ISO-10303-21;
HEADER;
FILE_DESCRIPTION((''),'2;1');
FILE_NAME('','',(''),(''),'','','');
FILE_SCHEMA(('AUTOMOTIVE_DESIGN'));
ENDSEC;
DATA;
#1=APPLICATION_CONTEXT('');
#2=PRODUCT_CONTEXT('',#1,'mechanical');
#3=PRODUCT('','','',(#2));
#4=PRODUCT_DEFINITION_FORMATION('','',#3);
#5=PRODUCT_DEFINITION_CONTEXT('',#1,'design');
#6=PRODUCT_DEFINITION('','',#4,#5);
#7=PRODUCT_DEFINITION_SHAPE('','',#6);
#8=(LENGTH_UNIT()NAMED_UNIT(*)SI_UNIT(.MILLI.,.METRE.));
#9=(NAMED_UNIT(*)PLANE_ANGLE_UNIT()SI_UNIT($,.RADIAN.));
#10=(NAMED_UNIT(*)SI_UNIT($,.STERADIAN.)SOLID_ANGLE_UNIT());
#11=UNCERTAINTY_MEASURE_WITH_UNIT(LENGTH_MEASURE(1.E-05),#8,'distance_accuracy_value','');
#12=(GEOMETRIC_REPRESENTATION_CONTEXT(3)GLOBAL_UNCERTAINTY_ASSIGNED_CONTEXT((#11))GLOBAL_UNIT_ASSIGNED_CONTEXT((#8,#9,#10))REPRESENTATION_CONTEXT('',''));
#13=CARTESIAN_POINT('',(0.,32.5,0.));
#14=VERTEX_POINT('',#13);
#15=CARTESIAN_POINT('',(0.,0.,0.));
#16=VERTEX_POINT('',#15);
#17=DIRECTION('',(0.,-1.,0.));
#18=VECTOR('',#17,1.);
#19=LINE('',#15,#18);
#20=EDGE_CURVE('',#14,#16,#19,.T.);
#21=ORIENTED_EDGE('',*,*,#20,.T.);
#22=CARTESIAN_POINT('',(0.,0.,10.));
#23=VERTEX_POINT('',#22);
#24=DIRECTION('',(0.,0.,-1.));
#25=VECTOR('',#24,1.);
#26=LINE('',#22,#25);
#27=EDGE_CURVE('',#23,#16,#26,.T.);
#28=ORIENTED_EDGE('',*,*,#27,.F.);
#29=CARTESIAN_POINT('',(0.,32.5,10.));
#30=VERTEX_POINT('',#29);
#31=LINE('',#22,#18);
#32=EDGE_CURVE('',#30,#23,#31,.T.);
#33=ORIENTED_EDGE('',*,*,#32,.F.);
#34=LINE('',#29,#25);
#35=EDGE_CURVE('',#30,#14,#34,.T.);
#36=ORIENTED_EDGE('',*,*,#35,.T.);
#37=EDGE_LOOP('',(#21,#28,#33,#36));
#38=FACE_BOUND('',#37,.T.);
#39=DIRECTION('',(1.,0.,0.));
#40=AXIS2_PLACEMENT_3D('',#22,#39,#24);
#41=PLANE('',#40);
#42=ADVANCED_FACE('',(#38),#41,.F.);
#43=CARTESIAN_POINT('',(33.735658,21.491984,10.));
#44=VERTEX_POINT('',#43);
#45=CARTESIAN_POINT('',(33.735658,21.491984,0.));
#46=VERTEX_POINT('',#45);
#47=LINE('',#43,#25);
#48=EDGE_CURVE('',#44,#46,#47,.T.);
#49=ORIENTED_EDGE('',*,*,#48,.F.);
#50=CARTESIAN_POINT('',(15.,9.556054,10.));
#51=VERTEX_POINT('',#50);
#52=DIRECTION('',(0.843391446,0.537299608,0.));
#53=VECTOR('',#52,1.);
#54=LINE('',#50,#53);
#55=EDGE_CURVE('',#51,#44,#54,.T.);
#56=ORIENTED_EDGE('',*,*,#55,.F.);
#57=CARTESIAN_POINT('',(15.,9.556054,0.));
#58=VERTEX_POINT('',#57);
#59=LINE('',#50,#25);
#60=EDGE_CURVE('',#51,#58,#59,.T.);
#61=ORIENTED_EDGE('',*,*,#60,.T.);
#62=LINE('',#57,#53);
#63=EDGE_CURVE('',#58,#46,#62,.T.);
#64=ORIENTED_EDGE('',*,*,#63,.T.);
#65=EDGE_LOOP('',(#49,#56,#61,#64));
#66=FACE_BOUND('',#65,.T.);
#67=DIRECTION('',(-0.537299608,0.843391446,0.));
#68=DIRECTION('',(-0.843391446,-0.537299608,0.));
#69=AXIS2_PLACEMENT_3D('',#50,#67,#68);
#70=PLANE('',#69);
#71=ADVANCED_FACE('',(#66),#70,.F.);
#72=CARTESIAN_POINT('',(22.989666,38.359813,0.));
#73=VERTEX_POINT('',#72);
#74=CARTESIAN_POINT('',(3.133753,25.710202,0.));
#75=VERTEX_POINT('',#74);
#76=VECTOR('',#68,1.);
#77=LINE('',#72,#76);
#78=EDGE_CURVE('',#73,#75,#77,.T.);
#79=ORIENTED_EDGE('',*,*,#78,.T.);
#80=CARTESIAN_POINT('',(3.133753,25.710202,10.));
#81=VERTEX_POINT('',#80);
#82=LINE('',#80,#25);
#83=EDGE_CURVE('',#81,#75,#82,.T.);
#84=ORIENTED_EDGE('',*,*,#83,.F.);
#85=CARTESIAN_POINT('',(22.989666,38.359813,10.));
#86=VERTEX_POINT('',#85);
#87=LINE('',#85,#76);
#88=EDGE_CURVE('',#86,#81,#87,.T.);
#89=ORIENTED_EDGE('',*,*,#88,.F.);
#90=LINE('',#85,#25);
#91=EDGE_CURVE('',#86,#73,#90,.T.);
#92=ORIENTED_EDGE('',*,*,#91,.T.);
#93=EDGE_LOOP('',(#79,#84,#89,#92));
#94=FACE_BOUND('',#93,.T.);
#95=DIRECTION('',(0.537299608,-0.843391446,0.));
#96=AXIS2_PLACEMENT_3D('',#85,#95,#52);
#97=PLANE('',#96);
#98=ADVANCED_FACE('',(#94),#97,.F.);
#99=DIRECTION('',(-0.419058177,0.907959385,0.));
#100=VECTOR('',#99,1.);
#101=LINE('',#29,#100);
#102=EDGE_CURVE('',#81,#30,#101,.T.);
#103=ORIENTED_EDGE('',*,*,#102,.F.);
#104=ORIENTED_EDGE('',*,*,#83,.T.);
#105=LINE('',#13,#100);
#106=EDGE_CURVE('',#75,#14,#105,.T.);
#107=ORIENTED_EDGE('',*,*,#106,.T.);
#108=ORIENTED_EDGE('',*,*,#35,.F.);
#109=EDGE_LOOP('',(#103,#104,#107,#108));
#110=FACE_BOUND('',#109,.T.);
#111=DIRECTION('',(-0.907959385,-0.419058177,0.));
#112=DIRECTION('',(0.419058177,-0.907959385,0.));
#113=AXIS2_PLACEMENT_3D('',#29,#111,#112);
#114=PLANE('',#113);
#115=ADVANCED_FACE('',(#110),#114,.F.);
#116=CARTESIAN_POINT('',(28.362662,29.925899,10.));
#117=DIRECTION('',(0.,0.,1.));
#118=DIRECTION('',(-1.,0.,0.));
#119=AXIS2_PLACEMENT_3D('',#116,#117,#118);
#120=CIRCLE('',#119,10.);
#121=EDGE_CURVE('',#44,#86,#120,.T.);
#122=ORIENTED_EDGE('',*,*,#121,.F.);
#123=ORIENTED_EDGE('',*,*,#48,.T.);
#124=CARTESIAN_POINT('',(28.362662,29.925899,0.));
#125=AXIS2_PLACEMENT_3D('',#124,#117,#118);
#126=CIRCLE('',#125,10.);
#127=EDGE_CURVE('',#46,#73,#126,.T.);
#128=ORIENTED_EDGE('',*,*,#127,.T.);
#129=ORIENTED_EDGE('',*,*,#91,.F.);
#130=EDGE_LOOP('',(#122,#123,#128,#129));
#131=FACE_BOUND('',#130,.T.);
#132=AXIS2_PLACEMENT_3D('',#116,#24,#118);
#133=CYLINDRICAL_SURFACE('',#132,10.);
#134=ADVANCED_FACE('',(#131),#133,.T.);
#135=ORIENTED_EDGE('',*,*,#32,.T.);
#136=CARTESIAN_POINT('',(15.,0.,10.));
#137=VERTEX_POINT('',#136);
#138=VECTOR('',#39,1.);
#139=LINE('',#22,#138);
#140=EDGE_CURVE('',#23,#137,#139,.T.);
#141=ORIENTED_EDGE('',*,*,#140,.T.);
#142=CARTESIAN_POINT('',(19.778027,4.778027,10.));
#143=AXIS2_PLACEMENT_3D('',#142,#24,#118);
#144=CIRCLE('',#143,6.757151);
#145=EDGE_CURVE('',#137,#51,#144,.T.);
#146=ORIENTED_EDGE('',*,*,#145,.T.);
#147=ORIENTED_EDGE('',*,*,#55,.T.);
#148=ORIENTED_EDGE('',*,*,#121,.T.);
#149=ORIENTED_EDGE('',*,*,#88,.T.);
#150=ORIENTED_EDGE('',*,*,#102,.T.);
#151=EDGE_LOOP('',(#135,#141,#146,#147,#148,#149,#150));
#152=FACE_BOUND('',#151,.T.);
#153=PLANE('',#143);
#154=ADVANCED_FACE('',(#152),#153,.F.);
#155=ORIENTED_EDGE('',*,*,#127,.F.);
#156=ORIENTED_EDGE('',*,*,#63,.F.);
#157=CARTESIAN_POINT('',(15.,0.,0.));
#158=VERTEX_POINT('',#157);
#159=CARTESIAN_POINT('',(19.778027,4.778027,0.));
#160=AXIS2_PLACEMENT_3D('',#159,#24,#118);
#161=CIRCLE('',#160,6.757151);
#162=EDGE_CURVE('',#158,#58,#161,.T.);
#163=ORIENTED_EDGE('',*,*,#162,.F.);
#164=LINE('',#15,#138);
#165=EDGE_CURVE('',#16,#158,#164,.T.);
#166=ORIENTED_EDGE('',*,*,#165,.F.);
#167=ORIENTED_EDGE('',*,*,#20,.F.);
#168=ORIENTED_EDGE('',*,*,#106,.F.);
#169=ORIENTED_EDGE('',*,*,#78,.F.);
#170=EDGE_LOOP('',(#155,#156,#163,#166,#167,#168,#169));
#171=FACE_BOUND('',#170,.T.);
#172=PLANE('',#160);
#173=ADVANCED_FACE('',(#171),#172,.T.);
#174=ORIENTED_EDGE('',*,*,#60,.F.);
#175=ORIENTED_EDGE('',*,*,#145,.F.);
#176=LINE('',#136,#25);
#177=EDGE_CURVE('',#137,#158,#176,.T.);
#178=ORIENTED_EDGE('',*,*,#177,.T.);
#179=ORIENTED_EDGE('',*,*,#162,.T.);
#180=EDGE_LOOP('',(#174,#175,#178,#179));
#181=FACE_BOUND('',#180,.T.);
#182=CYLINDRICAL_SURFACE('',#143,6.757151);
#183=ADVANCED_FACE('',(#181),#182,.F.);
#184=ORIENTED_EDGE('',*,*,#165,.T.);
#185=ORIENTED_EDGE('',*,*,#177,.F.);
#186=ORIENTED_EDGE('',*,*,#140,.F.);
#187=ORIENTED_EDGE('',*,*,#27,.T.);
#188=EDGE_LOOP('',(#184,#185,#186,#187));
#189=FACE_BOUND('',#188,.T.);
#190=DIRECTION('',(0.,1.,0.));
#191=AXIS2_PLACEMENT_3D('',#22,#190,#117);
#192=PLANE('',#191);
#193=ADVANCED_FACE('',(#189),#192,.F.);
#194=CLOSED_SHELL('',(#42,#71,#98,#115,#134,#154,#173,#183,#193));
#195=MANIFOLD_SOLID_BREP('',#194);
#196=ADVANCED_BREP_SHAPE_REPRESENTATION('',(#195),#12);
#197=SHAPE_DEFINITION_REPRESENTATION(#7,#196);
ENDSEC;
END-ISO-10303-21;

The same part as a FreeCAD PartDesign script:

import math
import FreeCAD as App
import Part
import Sketcher
from FreeCAD import Vector
Q = App.Units.Quantity

doc = App.newDocument("Part")
body = doc.addObject("PartDesign::Body", "Body")

# Sketch on XY plane
sketch1 = doc.addObject("Sketcher::SketchObject", "Sketch")
body.addObject(sketch1)
sketch1.AttachmentSupport = (doc.XY_Plane, [""])
sketch1.MapMode = "FlatFace"
sketch1.addGeometry(Part.LineSegment(Vector(0, 32.5, 0), Vector(0, 0, 0)), False)
sketch1.addGeometry(Part.LineSegment(Vector(0, 0, 0), Vector(15, 0, 0)), False)
sketch1.addGeometry(Part.ArcOfCircle(Part.Circle(Vector(19.778027, 4.778027, 0), Vector(0, 0, 1), 6.757151), math.radians(135), math.radians(225)), False)
sketch1.addGeometry(Part.LineSegment(Vector(15, 9.556054, 0), Vector(33.735658, 21.491984, 0)), False)
sketch1.addGeometry(Part.ArcOfCircle(Part.Circle(Vector(28.362662, 29.925899, 0), Vector(0, 0, 1), 10), math.radians(-57.5), math.radians(122.5)), False)
sketch1.addGeometry(Part.LineSegment(Vector(22.989666, 38.359813, 0), Vector(3.133753, 25.710202, 0)), False)
sketch1.addGeometry(Part.LineSegment(Vector(3.133753, 25.710202, 0), Vector(0, 32.5, 0)), False)
sketch1.addConstraint(Sketcher.Constraint("Coincident", 0, 2, 1, 1))
sketch1.addConstraint(Sketcher.Constraint("Coincident", 1, 2, 2, 2))
sketch1.addConstraint(Sketcher.Constraint("Coincident", 2, 1, 3, 1))
sketch1.addConstraint(Sketcher.Constraint("Tangent", 3, 2, 4, 1))
sketch1.addConstraint(Sketcher.Constraint("Tangent", 4, 2, 5, 1))
sketch1.addConstraint(Sketcher.Constraint("Coincident", 5, 2, 6, 1))
sketch1.addConstraint(Sketcher.Constraint("Coincident", 6, 2, 0, 1))
sketch1.addConstraint(Sketcher.Constraint("Vertical", 0))
sketch1.addConstraint(Sketcher.Constraint("Horizontal", 1))
sketch1.addConstraint(Sketcher.Constraint("Coincident", 0, 2, -1, 1))
sketch1.addConstraint(Sketcher.Constraint("Parallel", 3, 5))
sketch1.addConstraint(Sketcher.Constraint("Vertical", 1, 2, 2, 1))
sketch1.addConstraint(Sketcher.Constraint("Radius", 4, Q("10 mm")))
sketch1.addConstraint(Sketcher.Constraint("DistanceX", 1, 1, 1, 2, Q("15 mm")))
sketch1.addConstraint(Sketcher.Constraint("DistanceY", 0, 2, 0, 1, Q("32.5 mm")))
sketch1.addConstraint(Sketcher.Constraint("Angle", 3, Q("32.5 deg")))
sketch1.addConstraint(Sketcher.Constraint("Radius", 2, Q("6.757151 mm")))
sketch1.addConstraint(Sketcher.Constraint("DistanceY", -1, 1, 4, 3, Q("29.925899 mm")))
sketch1.addConstraint(Sketcher.Constraint("DistanceY", -1, 1, 5, 2, Q("25.710202 mm")))
sketch1.addConstraint(Sketcher.Constraint("DistanceX", -1, 1, 4, 3, Q("28.362662 mm")))
pad1 = doc.addObject("PartDesign::Pad", "Pad")
body.addObject(pad1)
pad1.Profile = sketch1
pad1.Length = 10

doc.recompute()
